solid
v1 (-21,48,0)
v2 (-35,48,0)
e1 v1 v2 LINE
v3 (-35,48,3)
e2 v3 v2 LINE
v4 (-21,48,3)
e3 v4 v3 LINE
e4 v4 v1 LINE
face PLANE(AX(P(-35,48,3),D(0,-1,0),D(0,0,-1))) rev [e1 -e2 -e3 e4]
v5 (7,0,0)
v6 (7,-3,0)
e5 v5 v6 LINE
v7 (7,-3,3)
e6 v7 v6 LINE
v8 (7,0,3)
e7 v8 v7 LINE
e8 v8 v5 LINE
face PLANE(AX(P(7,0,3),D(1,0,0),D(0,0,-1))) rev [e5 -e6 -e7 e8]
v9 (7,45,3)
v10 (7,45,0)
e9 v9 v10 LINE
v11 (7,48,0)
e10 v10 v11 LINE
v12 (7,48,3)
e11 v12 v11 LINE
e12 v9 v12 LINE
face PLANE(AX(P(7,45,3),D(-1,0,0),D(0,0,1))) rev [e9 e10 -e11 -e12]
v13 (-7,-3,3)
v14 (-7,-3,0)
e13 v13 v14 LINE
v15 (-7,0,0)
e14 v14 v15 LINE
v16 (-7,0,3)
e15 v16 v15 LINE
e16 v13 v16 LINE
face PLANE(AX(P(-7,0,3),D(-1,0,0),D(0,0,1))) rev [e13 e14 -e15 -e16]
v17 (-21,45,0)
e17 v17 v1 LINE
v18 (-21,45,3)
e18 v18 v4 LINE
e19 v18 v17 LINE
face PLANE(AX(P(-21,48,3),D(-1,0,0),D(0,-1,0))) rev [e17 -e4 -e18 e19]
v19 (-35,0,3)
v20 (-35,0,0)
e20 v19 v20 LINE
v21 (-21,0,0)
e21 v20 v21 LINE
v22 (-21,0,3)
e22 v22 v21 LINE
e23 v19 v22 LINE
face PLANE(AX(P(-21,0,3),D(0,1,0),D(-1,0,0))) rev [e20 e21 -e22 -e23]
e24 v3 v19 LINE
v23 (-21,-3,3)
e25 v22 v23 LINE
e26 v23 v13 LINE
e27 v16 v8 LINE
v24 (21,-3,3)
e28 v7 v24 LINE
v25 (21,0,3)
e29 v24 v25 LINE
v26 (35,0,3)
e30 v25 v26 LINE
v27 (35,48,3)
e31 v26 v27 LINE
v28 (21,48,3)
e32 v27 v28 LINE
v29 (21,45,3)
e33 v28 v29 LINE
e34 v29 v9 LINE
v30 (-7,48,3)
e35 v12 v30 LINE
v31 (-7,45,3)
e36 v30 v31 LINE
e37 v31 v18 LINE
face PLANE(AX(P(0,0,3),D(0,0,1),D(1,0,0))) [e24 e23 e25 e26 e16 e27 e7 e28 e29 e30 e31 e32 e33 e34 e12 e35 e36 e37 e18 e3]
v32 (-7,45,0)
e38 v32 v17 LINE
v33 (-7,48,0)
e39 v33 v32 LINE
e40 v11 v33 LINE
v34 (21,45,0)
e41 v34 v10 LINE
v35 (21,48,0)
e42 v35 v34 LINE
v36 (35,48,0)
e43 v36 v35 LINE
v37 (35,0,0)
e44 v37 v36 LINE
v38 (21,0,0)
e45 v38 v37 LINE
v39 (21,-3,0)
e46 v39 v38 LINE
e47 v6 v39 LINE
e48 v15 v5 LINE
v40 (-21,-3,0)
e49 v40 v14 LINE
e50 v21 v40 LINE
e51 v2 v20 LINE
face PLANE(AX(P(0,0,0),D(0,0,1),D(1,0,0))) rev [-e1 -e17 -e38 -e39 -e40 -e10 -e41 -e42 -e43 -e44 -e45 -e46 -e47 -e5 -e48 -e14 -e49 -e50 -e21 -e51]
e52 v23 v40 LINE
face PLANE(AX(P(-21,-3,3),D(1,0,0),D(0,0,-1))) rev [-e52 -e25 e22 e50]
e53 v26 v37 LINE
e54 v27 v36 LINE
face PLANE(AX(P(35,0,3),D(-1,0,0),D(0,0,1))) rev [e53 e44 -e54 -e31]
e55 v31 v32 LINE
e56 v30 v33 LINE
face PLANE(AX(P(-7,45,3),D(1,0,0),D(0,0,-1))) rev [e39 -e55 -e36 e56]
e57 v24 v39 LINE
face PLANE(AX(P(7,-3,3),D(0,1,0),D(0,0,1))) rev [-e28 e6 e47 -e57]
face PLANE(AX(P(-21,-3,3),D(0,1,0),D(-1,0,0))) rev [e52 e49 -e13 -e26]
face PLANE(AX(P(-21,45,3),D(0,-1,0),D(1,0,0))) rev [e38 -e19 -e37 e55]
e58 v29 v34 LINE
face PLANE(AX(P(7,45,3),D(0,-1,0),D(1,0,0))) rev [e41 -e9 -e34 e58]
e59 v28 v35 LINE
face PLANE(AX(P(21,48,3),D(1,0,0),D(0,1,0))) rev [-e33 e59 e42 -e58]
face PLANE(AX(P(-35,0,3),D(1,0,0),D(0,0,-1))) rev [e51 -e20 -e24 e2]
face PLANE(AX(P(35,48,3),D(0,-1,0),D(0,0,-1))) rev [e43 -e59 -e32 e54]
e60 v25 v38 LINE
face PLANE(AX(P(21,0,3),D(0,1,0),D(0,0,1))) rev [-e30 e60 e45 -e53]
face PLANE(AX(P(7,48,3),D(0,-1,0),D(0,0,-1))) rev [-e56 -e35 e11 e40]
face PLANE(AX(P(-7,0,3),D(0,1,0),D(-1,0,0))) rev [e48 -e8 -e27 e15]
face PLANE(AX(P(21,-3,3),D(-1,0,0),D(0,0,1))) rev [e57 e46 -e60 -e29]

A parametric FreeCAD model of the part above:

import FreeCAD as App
import Part
import Sketcher

V = App.Vector


def add_polygon(sketch, points):
    """Adds a closed chain of lines whose ends are joined by coincident constraints."""
    first, n = sketch.GeometryCount, len(points)
    for a, b in zip(points, points[1:] + points[:1]):
        sketch.addGeometry(Part.LineSegment(App.Vector(*a, 0), App.Vector(*b, 0)), False)
    for i in range(n):
        sketch.addConstraint(Sketcher.Constraint("Coincident", first + i, 2, first + (i + 1) % n, 1))

doc = App.newDocument("Part")
body = doc.addObject("PartDesign::Body", "Body")

sketch1 = doc.addObject("Sketcher::SketchObject", "Sketch")
body.addObject(sketch1)
sketch1.AttachmentSupport = (doc.XY_Plane, [""])
sketch1.MapMode = "FlatFace"
add_polygon(sketch1, [(-7, 0), (7, 0), (7, -3), (21, -3), (21, 0), (35, 0), (35, 48), (21, 48), (21, 45), (7, 45), (7, 48), (-7, 48), (-7, 45), (-21, 45), (-21, 48), (-35, 48), (-35, 0), (-21, 0), (-21, -3), (-7, -3)])
sketch1.addConstraint(Sketcher.Constraint("Horizontal", 0))
sketch1.addConstraint(Sketcher.Constraint("Vertical", 1))
sketch1.addConstraint(Sketcher.Constraint("Horizontal", 2))
sketch1.addConstraint(Sketcher.Constraint("Vertical", 3))
sketch1.addConstraint(Sketcher.Constraint("Horizontal", 4))
sketch1.addConstraint(Sketcher.Constraint("Vertical", 5))
sketch1.addConstraint(Sketcher.Constraint("Horizontal", 6))
sketch1.addConstraint(Sketcher.Constraint("Vertical", 7))
sketch1.addConstraint(Sketcher.Constraint("Horizontal", 8))
sketch1.addConstraint(Sketcher.Constraint("Vertical", 9))
sketch1.addConstraint(Sketcher.Constraint("Horizontal", 10))
sketch1.addConstraint(Sketcher.Constraint("Vertical", 11))
sketch1.addConstraint(Sketcher.Constraint("Horizontal", 12))
sketch1.addConstraint(Sketcher.Constraint("Vertical", 13))
sketch1.addConstraint(Sketcher.Constraint("Horizontal", 14))
sketch1.addConstraint(Sketcher.Constraint("Vertical", 15))
sketch1.addConstraint(Sketcher.Constraint("Horizontal", 16))
sketch1.addConstraint(Sketcher.Constraint("Vertical", 17))
sketch1.addConstraint(Sketcher.Constraint("Horizontal", 18))
sketch1.addConstraint(Sketcher.Constraint("Vertical", 19))
sketch1.addConstraint(Sketcher.Constraint("Symmetric", 4, 2, 15, 2, -1, 1))
sketch1.addConstraint(Sketcher.Constraint("Symmetric", 0, 2, 19, 2, -1, 1))
sketch1.addConstraint(Sketcher.Constraint("Symmetric", 8, 2, 11, 2, -2))
sketch1.addConstraint(Sketcher.Constraint("Symmetric", 6, 2, 13, 2, -2))
sketch1.addConstraint(Sketcher.Constraint("Symmetric", 3, 2, 16, 2, -2))
sketch1.addConstraint(Sketcher.Constraint("Horizontal", 6, 2, 9, 2))
sketch1.addConstraint(Sketcher.Constraint("Horizontal", 2, 2, 17, 2))
sketch1.addConstraint(Sketcher.Constraint("Vertical", 3, 2, 6, 2))
sketch1.addConstraint(Sketcher.Constraint("Vertical", 1, 2, 8, 2))
sketch1.addConstraint(Sketcher.Constraint("Equal", 0, 2))
sketch1.addConstraint(Sketcher.Constraint("Equal", 2, 4))
sketch1.addConstraint(Sketcher.Constraint("Equal", 3, 7))
sketch1.addConstraint(Sketcher.Constraint("DistanceX", 0, 1, 0, 2, 14.0))
sketch1.addConstraint(Sketcher.Constraint("DistanceY", 1, 2, 1, 1, 3.0))
sketch1.addConstraint(Sketcher.Constraint("DistanceY", 5, 1, 5, 2, 48.0))
pad1 = doc.addObject("PartDesign::Pad", "Pad")
body.addObject(pad1)
pad1.Profile = sketch1
pad1.Length = 3

doc.recompute()
